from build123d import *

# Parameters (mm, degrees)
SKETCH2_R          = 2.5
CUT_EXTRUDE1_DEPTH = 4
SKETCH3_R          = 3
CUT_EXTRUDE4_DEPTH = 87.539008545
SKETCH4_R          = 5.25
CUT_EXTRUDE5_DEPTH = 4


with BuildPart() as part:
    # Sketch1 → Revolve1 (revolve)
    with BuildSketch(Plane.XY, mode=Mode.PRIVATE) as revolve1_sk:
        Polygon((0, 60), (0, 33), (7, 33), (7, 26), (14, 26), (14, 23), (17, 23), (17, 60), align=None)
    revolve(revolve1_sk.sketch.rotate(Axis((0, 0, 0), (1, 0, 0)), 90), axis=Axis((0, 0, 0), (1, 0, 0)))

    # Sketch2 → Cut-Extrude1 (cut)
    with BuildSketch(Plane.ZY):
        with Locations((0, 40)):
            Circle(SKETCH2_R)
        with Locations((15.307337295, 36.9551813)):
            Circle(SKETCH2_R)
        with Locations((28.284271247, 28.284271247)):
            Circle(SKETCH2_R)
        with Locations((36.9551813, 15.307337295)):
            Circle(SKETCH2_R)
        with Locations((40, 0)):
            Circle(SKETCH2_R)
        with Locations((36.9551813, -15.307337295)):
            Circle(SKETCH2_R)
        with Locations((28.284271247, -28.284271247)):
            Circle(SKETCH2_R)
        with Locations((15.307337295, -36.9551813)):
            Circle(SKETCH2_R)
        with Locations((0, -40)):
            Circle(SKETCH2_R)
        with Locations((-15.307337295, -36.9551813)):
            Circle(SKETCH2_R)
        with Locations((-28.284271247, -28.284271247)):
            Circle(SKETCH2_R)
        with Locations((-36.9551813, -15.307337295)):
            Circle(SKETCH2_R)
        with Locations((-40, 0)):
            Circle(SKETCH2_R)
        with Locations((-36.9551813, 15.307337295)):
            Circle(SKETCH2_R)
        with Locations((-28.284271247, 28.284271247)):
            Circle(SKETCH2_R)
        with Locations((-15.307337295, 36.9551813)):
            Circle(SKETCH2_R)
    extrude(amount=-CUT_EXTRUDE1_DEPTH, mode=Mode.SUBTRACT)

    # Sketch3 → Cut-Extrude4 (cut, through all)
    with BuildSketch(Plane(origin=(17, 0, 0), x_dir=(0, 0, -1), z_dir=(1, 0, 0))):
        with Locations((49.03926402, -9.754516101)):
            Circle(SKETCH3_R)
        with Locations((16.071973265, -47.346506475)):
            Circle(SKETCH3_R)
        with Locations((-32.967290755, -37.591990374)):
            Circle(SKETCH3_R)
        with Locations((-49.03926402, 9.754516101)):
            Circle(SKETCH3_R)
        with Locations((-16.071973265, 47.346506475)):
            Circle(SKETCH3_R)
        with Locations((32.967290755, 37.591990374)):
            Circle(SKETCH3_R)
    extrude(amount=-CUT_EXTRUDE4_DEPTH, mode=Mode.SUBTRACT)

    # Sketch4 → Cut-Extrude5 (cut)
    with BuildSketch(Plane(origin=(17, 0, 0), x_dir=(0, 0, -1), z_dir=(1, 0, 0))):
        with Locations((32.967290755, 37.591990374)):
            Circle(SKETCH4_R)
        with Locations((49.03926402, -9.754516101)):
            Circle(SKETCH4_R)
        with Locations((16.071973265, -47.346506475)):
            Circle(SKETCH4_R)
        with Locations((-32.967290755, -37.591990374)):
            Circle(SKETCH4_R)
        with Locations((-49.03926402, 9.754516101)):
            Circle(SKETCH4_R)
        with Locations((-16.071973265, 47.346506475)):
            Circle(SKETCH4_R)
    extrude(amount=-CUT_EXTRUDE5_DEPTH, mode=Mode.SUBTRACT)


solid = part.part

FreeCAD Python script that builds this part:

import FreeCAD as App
import Part
import Sketcher
from FreeCAD import Vector
Q = App.Units.Quantity

doc = App.newDocument("Part")
params = doc.addObject("Spreadsheet::Sheet", "Params")
for row, (alias, value) in enumerate([
    ("sketch1_width", "7 mm"),
    ("sketch1_width2", "3 mm"),
    ("sketch1_height", "27 mm"),
    ("revolution_angle", "360 deg"),
    ("sketch2_diameter", "5 mm"),
    ("pocket1_length", "4 mm"),
    ("sketch3_diameter", "6 mm"),
    ("sketch4_diameter", "10.5 mm"),
    ("pocket3_length", "4 mm"),
], start=1):
    params.set(f"A{row}", alias)
    params.set(f"B{row}", "=" + value)
    params.setAlias(f"B{row}", alias)

body = doc.addObject("PartDesign::Body", "Body")

# Sketch on XY plane
sketch1 = doc.addObject("Sketcher::SketchObject", "Sketch")
body.addObject(sketch1)
sketch1.AttachmentSupport = (doc.XY_Plane, [""])
sketch1.MapMode = "FlatFace"
sketch1.addGeometry(Part.LineSegment(Vector(0, 60, 0), Vector(0, 33, 0)), False)
sketch1.addGeometry(Part.LineSegment(Vector(0, 33, 0), Vector(7, 33, 0)), False)
sketch1.addGeometry(Part.LineSegment(Vector(7, 33, 0), Vector(7, 26, 0)), False)
sketch1.addGeometry(Part.LineSegment(Vector(7, 26, 0), Vector(14, 26, 0)), False)
sketch1.addGeometry(Part.LineSegment(Vector(14, 26, 0), Vector(14, 23, 0)), False)
sketch1.addGeometry(Part.LineSegment(Vector(14, 23, 0), Vector(17, 23, 0)), False)
sketch1.addGeometry(Part.LineSegment(Vector(17, 23, 0), Vector(17, 60, 0)), False)
sketch1.addGeometry(Part.LineSegment(Vector(17, 60, 0), Vector(0, 60, 0)), False)
sketch1.addConstraint(Sketcher.Constraint("Coincident", 0, 2, 1, 1))
sketch1.addConstraint(Sketcher.Constraint("Coincident", 1, 2, 2, 1))
sketch1.addConstraint(Sketcher.Constraint("Coincident", 2, 2, 3, 1))
sketch1.addConstraint(Sketcher.Constraint("Coincident", 3, 2, 4, 1))
sketch1.addConstraint(Sketcher.Constraint("Coincident", 4, 2, 5, 1))
sketch1.addConstraint(Sketcher.Constraint("Coincident", 5, 2, 6, 1))
sketch1.addConstraint(Sketcher.Constraint("Coincident", 6, 2, 7, 1))
sketch1.addConstraint(Sketcher.Constraint("Coincident", 7, 2, 0, 1))
sketch1.addConstraint(Sketcher.Constraint("Vertical", 0))
sketch1.addConstraint(Sketcher.Constraint("Horizontal", 1))
sketch1.addConstraint(Sketcher.Constraint("Vertical", 2))
sketch1.addConstraint(Sketcher.Constraint("Horizontal", 3))
sketch1.addConstraint(Sketcher.Constraint("Vertical", 4))
sketch1.addConstraint(Sketcher.Constraint("Horizontal", 5))
sketch1.addConstraint(Sketcher.Constraint("Vertical", 6))
sketch1.addConstraint(Sketcher.Constraint("Horizontal", 7))
sketch1.addConstraint(Sketcher.Constraint("PointOnObject", 0, 2, -2))
sketch1.addConstraint(Sketcher.Constraint("Equal", 1, 3))
sketch1.addConstraint(Sketcher.Constraint("Equal", 3, 2))
sketch1.addConstraint(Sketcher.Constraint("Equal", 5, 4))
sketch1.addConstraint(Sketcher.Constraint("DistanceX", 1, 1, 1, 2, Q("7 mm")))
sketch1.addConstraint(Sketcher.Constraint("DistanceX", 5, 1, 5, 2, Q("3 mm")))
sketch1.addConstraint(Sketcher.Constraint("DistanceY", 0, 2, 0, 1, Q("27 mm")))
sketch1.addConstraint(Sketcher.Constraint("DistanceY", -1, 1, 0, 2, Q("33 mm")))
sketch1.setExpression("Constraints[20]", "Params.sketch1_width")
sketch1.setExpression("Constraints[21]", "Params.sketch1_width2")
sketch1.setExpression("Constraints[22]", "Params.sketch1_height")
revolution = doc.addObject("PartDesign::Revolution", "Revolution")
body.addObject(revolution)
revolution.Profile = sketch1
revolution.ReferenceAxis = (sketch1, ["H_Axis"])
revolution.setExpression("Angle", "Params.revolution_angle")

# Sketch on YZ plane
sketch2 = doc.addObject("Sketcher::SketchObject", "Sketch001")
body.addObject(sketch2)
sketch2.AttachmentSupport = (doc.YZ_Plane, [""])
sketch2.MapMode = "FlatFace"
sketch2.addGeometry(Part.Circle(Vector(40, 0, 0), Vector(0, 0, 1), 2.5), False)
sketch2.addGeometry(Part.Circle(Vector(37, 15.3, 0), Vector(0, 0, 1), 2.5), False)
sketch2.addGeometry(Part.Circle(Vector(28.3, 28.3, 0), Vector(0, 0, 1), 2.5), False)
sketch2.addGeometry(Part.Circle(Vector(15.3, 37, 0), Vector(0, 0, 1), 2.5), False)
sketch2.addGeometry(Part.Circle(Vector(0, 40, 0), Vector(0, 0, 1), 2.5), False)
sketch2.addGeometry(Part.Circle(Vector(-15.3, 37, 0), Vector(0, 0, 1), 2.5), False)
sketch2.addGeometry(Part.Circle(Vector(-28.3, 28.3, 0), Vector(0, 0, 1), 2.5), False)
sketch2.addGeometry(Part.Circle(Vector(-37, 15.3, 0), Vector(0, 0, 1), 2.5), False)
sketch2.addGeometry(Part.Circle(Vector(-40, 0, 0), Vector(0, 0, 1), 2.5), False)
sketch2.addGeometry(Part.Circle(Vector(-37, -15.3, 0), Vector(0, 0, 1), 2.5), False)
sketch2.addGeometry(Part.Circle(Vector(-28.3, -28.3, 0), Vector(0, 0, 1), 2.5), False)
sketch2.addGeometry(Part.Circle(Vector(-15.3, -37, 0), Vector(0, 0, 1), 2.5), False)
sketch2.addGeometry(Part.Circle(Vector(0, -40, 0), Vector(0, 0, 1), 2.5), False)
sketch2.addGeometry(Part.Circle(Vector(15.3, -37, 0), Vector(0, 0, 1), 2.5), False)
sketch2.addGeometry(Part.Circle(Vector(28.3, -28.3, 0), Vector(0, 0, 1), 2.5), False)
sketch2.addGeometry(Part.Circle(Vector(37, -15.3, 0), Vector(0, 0, 1), 2.5), False)
sketch2.addConstraint(Sketcher.Constraint("Equal", 0, 1))
sketch2.addConstraint(Sketcher.Constraint("Equal", 1, 2))
sketch2.addConstraint(Sketcher.Constraint("Equal", 2, 3))
sketch2.addConstraint(Sketcher.Constraint("Equal", 3, 4))
sketch2.addConstraint(Sketcher.Constraint("Equal", 4, 5))
sketch2.addConstraint(Sketcher.Constraint("Equal", 5, 6))
sketch2.addConstraint(Sketcher.Constraint("Equal", 6, 7))
sketch2.addConstraint(Sketcher.Constraint("Equal", 7, 8))
sketch2.addConstraint(Sketcher.Constraint("Equal", 8, 9))
sketch2.addConstraint(Sketcher.Constraint("Equal", 9, 10))
sketch2.addConstraint(Sketcher.Constraint("Equal", 10, 11))
sketch2.addConstraint(Sketcher.Constraint("Equal", 11, 12))
sketch2.addConstraint(Sketcher.Constraint("Equal", 12, 13))
sketch2.addConstraint(Sketcher.Constraint("Equal", 13, 14))
sketch2.addConstraint(Sketcher.Constraint("Equal", 14, 15))
sketch2.addConstraint(Sketcher.Constraint("Symmetric", 0, 3, 8, 3, -1, 1))
sketch2.addConstraint(Sketcher.Constraint("Symmetric", 1, 3, 9, 3, -1, 1))
sketch2.addConstraint(Sketcher.Constraint("Symmetric", 2, 3, 10, 3, -1, 1))
sketch2.addConstraint(Sketcher.Constraint("Symmetric", 3, 3, 11, 3, -1, 1))
sketch2.addConstraint(Sketcher.Constraint("Symmetric", 4, 3, 12, 3, -1, 1))
sketch2.addConstraint(Sketcher.Constraint("Symmetric", 5, 3, 13, 3, -1, 1))
sketch2.addConstraint(Sketcher.Constraint("Symmetric", 6, 3, 14, 3, -1, 1))
sketch2.addConstraint(Sketcher.Constraint("Symmetric", 7, 3, 15, 3, -1, 1))
sketch2.addConstraint(Sketcher.Constraint("Symmetric", 3, 3, 5, 3, -2))
sketch2.addConstraint(Sketcher.Constraint("Symmetric", 2, 3, 6, 3, -2))
sketch2.addConstraint(Sketcher.Constraint("Symmetric", 1, 3, 7, 3, -2))
sketch2.addConstraint(Sketcher.Constraint("PointOnObject", 0, 3, -1))
sketch2.addConstraint(Sketcher.Constraint("PointOnObject", 4, 3, -2))
sketch2.addConstraint(Sketcher.Constraint("Diameter", 0, Q("5 mm")))
sketch2.addConstraint(Sketcher.Constraint("DistanceX", -1, 1, 0, 3, Q("40 mm")))
sketch2.addConstraint(Sketcher.Constraint("DistanceY", -1, 1, 4, 3, Q("40 mm")))
sketch2.addConstraint(Sketcher.Constraint("DistanceX", -1, 1, 1, 3, Q("36.955181 mm")))
sketch2.addConstraint(Sketcher.Constraint("DistanceX", -1, 1, 2, 3, Q("28.284271 mm")))
sketch2.addConstraint(Sketcher.Constraint("DistanceY", -1, 1, 2, 3, Q("28.284271 mm")))
sketch2.addConstraint(Sketcher.Constraint("DistanceY", -1, 1, 3, 3, Q("36.955181 mm")))
sketch2.addConstraint(Sketcher.Constraint("DistanceX", 5, 3, 2, 3, Q("43.591609 mm")))
sketch2.addConstraint(Sketcher.Constraint("DistanceY", 9, 3, 6, 3, Q("43.591609 mm")))
sketch2.setExpression("Constraints[28]", "Params.sketch2_diameter")
pocket1 = doc.addObject("PartDesign::Pocket", "Pocket")
body.addObject(pocket1)
pocket1.Profile = sketch2
pocket1.setExpression("Length", "Params.pocket1_length")
pocket1.Reversed = True

# Sketch on YZ plane
sketch3 = doc.addObject("Sketcher::SketchObject", "Sketch002")
body.addObject(sketch3)
sketch3.AttachmentSupport = (doc.YZ_Plane, [""])
sketch3.MapMode = "FlatFace"
sketch3.AttachmentOffset = App.Placement(Vector(0, 0, 17), App.Rotation())
sketch3.addGeometry(Part.Circle(Vector(-9.8, -49, 0), Vector(0, 0, 1), 3), False)
sketch3.addGeometry(Part.Circle(Vector(-47.3, -16.1, 0), Vector(0, 0, 1), 3), False)
sketch3.addGeometry(Part.Circle(Vector(-37.6, 33, 0), Vector(0, 0, 1), 3), False)
sketch3.addGeometry(Part.Circle(Vector(9.8, 49, 0), Vector(0, 0, 1), 3), False)
sketch3.addGeometry(Part.Circle(Vector(47.3, 16.1, 0), Vector(0, 0, 1), 3), False)
sketch3.addGeometry(Part.Circle(Vector(37.6, -33, 0), Vector(0, 0, 1), 3), False)
sketch3.addConstraint(Sketcher.Constraint("Equal", 0, 1))
sketch3.addConstraint(Sketcher.Constraint("Equal", 1, 2))
sketch3.addConstraint(Sketcher.Constraint("Equal", 2, 3))
sketch3.addConstraint(Sketcher.Constraint("Equal", 3, 4))
sketch3.addConstraint(Sketcher.Constraint("Equal", 4, 5))
sketch3.addConstraint(Sketcher.Constraint("Symmetric", 0, 3, 3, 3, -1, 1))
sketch3.addConstraint(Sketcher.Constraint("Symmetric", 1, 3, 4, 3, -1, 1))
sketch3.addConstraint(Sketcher.Constraint("Symmetric", 2, 3, 5, 3, -1, 1))
sketch3.addConstraint(Sketcher.Constraint("Diameter", 0, Q("6 mm")))
sketch3.addConstraint(Sketcher.Constraint("DistanceX", 2, 3, -1, 1, Q("37.59199 mm")))
sketch3.addConstraint(Sketcher.Constraint("DistanceY", -1, 1, 2, 3, Q("32.967291 mm")))
sketch3.addConstraint(Sketcher.Constraint("DistanceX", 1, 3, 0, 3, Q("37.59199 mm")))
sketch3.addConstraint(Sketcher.Constraint("DistanceY", 0, 3, 1, 3, Q("32.967291 mm")))
sketch3.addConstraint(Sketcher.Constraint("DistanceY", 0, 3, 3, 3, Q("98.078528 mm")))
sketch3.addConstraint(Sketcher.Constraint("DistanceX", 0, 3, -1, 1, Q("9.754516 mm")))
sketch3.setExpression("Constraints[8]", "Params.sketch3_diameter")
pocket2 = doc.addObject("PartDesign::Pocket", "Pocket001")
body.addObject(pocket2)
pocket2.Profile = sketch3
pocket2.Type = "ThroughAll"

# Sketch on YZ plane
sketch4 = doc.addObject("Sketcher::SketchObject", "Sketch003")
body.addObject(sketch4)
sketch4.AttachmentSupport = (doc.YZ_Plane, [""])
sketch4.MapMode = "FlatFace"
sketch4.AttachmentOffset = App.Placement(Vector(0, 0, 17), App.Rotation())
sketch4.addGeometry(Part.Circle(Vector(38, -33, 0), Vector(0, 0, 1), 5), False)
sketch4.addGeometry(Part.Circle(Vector(-10, -49, 0), Vector(0, 0, 1), 5), False)
sketch4.addGeometry(Part.Circle(Vector(-47, -16, 0), Vector(0, 0, 1), 5), False)
sketch4.addGeometry(Part.Circle(Vector(-38, 33, 0), Vector(0, 0, 1), 5), False)
sketch4.addGeometry(Part.Circle(Vector(10, 49, 0), Vector(0, 0, 1), 5), False)
sketch4.addGeometry(Part.Circle(Vector(47, 16, 0), Vector(0, 0, 1), 5), False)
sketch4.addConstraint(Sketcher.Constraint("Equal", 0, 1))
sketch4.addConstraint(Sketcher.Constraint("Equal", 1, 2))
sketch4.addConstraint(Sketcher.Constraint("Equal", 2, 3))
sketch4.addConstraint(Sketcher.Constraint("Equal", 3, 4))
sketch4.addConstraint(Sketcher.Constraint("Equal", 4, 5))
sketch4.addConstraint(Sketcher.Constraint("Symmetric", 0, 3, 3, 3, -1, 1))
sketch4.addConstraint(Sketcher.Constraint("Symmetric", 1, 3, 4, 3, -1, 1))
sketch4.addConstraint(Sketcher.Constraint("Symmetric", 2, 3, 5, 3, -1, 1))
sketch4.addConstraint(Sketcher.Constraint("Diameter", 0, Q("10.5 mm")))
sketch4.addConstraint(Sketcher.Constraint("DistanceX", -1, 1, 0, 3, Q("37.59199 mm")))
sketch4.addConstraint(Sketcher.Constraint("DistanceY", 0, 3, -1, 1, Q("32.967291 mm")))
sketch4.addConstraint(Sketcher.Constraint("DistanceX", 2, 3, 1, 3, Q("37.59199 mm")))
sketch4.addConstraint(Sketcher.Constraint("DistanceY", 1, 3, 2, 3, Q("32.967291 mm")))
sketch4.addConstraint(Sketcher.Constraint("DistanceY", 1, 3, 4, 3, Q("98.078528 mm")))
sketch4.addConstraint(Sketcher.Constraint("DistanceX", 1, 3, -1, 1, Q("9.754516 mm")))
sketch4.setExpression("Constraints[8]", "Params.sketch4_diameter")
pocket3 = doc.addObject("PartDesign::Pocket", "Pocket002")
body.addObject(pocket3)
pocket3.Profile = sketch4
pocket3.setExpression("Length", "Params.pocket3_length")

doc.recompute()
